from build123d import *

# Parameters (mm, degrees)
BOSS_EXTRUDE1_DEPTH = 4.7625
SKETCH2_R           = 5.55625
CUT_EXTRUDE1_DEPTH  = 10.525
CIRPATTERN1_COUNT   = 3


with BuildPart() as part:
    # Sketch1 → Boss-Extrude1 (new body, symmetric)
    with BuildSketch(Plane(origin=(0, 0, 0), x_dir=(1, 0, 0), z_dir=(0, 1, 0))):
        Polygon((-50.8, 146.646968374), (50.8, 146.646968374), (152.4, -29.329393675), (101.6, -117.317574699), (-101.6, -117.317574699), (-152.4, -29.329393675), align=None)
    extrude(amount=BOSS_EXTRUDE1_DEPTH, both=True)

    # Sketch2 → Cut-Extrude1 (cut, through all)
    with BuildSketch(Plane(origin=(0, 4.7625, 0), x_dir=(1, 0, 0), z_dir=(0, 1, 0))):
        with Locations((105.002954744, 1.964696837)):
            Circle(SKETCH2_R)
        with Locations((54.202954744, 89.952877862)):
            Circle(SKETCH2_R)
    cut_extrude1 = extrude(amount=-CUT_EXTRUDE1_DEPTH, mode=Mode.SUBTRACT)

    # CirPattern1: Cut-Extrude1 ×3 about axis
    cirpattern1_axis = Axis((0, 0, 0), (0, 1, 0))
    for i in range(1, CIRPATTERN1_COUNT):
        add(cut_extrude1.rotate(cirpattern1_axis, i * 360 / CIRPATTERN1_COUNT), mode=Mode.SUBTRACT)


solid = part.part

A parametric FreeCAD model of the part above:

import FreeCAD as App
import Part
import Sketcher
from FreeCAD import Vector
Q = App.Units.Quantity

doc = App.newDocument("Part")
params = doc.addObject("Spreadsheet::Sheet", "Params")
for row, (alias, value) in enumerate([
    ("sketch1_width", "4 in"),
    ("sketch1_width2", "8 in"),
    ("sketch1_length", "8 in"),
    ("sketch1_length2", "4 in"),
    ("pad1_length", "0.375 in"),
    ("sketch2_diameter", "0.4375 in"),
], start=1):
    params.set(f"A{row}", alias)
    params.set(f"B{row}", "=" + value)
    params.setAlias(f"B{row}", alias)

body = doc.addObject("PartDesign::Body", "Body")

# Sketch on XZ plane
sketch1 = doc.addObject("Sketcher::SketchObject", "Sketch")
body.addObject(sketch1)
sketch1.AttachmentSupport = (doc.XZ_Plane, [""])
sketch1.MapMode = "FlatFace"
sketch1.addGeometry([
    Part.LineSegment(Vector(51, -147, 0), Vector(-51, -147, 0)),  # 0
    Part.LineSegment(Vector(-51, -147, 0), Vector(-152, 29, 0)),  # 1
    Part.LineSegment(Vector(-152, 29, 0), Vector(-102, 117, 0)),  # 2
    Part.LineSegment(Vector(-102, 117, 0), Vector(102, 117, 0)),  # 3
    Part.LineSegment(Vector(102, 117, 0), Vector(152, 29, 0)),  # 4
    Part.LineSegment(Vector(152, 29, 0), Vector(51, -147, 0)),  # 5
], False)
sketch1.addConstraint([
    Sketcher.Constraint("Coincident", 0, 2, 1, 1),
    Sketcher.Constraint("Coincident", 1, 2, 2, 1),
    Sketcher.Constraint("Coincident", 2, 2, 3, 1),
    Sketcher.Constraint("Coincident", 3, 2, 4, 1),
    Sketcher.Constraint("Coincident", 4, 2, 5, 1),
    Sketcher.Constraint("Coincident", 5, 2, 0, 1),
    Sketcher.Constraint("Horizontal", 0),
    Sketcher.Constraint("Horizontal", 3),
    Sketcher.Constraint("Symmetric", 1, 2, 4, 2, -2),
    Sketcher.Constraint("Parallel", 1, 4),
    Sketcher.Constraint("Parallel", 2, 5),
    Sketcher.Constraint("Equal", 2, 4),
    Sketcher.Constraint("DistanceX", 0, 2, 0, 1, Q("4 in")),
    Sketcher.Constraint("DistanceX", 3, 1, 3, 2, Q("8 in")),
    Sketcher.Constraint("Distance", 1, Q("8 in")),
    Sketcher.Constraint("Distance", 2, Q("4 in")),
    Sketcher.Constraint("DistanceY", 0, 2, -1, 1, 146.646968),
])
sketch1.setExpression("Constraints[12]", "Params.sketch1_width")
sketch1.setExpression("Constraints[13]", "Params.sketch1_width2")
sketch1.setExpression("Constraints[14]", "Params.sketch1_length")
sketch1.setExpression("Constraints[15]", "Params.sketch1_length2")
pad1 = doc.addObject("PartDesign::Pad", "Pad")
body.addObject(pad1)
pad1.Profile = sketch1
pad1.setExpression("Length", "Params.pad1_length")
pad1.Midplane = True

# Sketch on XZ plane
sketch2 = doc.addObject("Sketcher::SketchObject", "Sketch001")
body.addObject(sketch2)
sketch2.AttachmentSupport = (doc.XZ_Plane, [""])
sketch2.MapMode = "FlatFace"
sketch2.AttachmentOffset = App.Placement(Vector(0, 0, -0.1875 * 25.4), App.Rotation())
sketch2.addGeometry([
    Part.Circle(Vector(105, -2, 0), Vector(0, 0, 1), 6),
    Part.Circle(Vector(54, -90, 0), Vector(0, 0, 1), 6),
], False)
sketch2.addConstraint([
    Sketcher.Constraint("Equal", 0, 1),
    Sketcher.Constraint("Diameter", 0, Q("0.4375 in")),
    Sketcher.Constraint("DistanceX", 1, 3, 0, 3, Q("2 in")),
    Sketcher.Constraint("DistanceY", 1, 3, 0, 3, 87.988181),
    Sketcher.Constraint("DistanceX", -1, 1, 0, 3, 105.002955),
    Sketcher.Constraint("DistanceY", 0, 3, -1, 1, 1.964697),
])
sketch2.setExpression("Constraints[1]", "Params.sketch2_diameter")
pocket1 = doc.addObject("PartDesign::Pocket", "Pocket")
body.addObject(pocket1)
pocket1.Profile = sketch2
pocket1.Type = "ThroughAll"
pocket1.Reversed = True
doc.recompute()

polarpattern = doc.addObject("PartDesign::PolarPattern", "PolarPattern")
body.addObject(polarpattern)
polarpattern.Originals = [pocket1]
polarpattern.Axis = (doc.Y_Axis, [""])
polarpattern.Angle = 360
polarpattern.Occurrences = 3
body.Tip = polarpattern

doc.recompute()
